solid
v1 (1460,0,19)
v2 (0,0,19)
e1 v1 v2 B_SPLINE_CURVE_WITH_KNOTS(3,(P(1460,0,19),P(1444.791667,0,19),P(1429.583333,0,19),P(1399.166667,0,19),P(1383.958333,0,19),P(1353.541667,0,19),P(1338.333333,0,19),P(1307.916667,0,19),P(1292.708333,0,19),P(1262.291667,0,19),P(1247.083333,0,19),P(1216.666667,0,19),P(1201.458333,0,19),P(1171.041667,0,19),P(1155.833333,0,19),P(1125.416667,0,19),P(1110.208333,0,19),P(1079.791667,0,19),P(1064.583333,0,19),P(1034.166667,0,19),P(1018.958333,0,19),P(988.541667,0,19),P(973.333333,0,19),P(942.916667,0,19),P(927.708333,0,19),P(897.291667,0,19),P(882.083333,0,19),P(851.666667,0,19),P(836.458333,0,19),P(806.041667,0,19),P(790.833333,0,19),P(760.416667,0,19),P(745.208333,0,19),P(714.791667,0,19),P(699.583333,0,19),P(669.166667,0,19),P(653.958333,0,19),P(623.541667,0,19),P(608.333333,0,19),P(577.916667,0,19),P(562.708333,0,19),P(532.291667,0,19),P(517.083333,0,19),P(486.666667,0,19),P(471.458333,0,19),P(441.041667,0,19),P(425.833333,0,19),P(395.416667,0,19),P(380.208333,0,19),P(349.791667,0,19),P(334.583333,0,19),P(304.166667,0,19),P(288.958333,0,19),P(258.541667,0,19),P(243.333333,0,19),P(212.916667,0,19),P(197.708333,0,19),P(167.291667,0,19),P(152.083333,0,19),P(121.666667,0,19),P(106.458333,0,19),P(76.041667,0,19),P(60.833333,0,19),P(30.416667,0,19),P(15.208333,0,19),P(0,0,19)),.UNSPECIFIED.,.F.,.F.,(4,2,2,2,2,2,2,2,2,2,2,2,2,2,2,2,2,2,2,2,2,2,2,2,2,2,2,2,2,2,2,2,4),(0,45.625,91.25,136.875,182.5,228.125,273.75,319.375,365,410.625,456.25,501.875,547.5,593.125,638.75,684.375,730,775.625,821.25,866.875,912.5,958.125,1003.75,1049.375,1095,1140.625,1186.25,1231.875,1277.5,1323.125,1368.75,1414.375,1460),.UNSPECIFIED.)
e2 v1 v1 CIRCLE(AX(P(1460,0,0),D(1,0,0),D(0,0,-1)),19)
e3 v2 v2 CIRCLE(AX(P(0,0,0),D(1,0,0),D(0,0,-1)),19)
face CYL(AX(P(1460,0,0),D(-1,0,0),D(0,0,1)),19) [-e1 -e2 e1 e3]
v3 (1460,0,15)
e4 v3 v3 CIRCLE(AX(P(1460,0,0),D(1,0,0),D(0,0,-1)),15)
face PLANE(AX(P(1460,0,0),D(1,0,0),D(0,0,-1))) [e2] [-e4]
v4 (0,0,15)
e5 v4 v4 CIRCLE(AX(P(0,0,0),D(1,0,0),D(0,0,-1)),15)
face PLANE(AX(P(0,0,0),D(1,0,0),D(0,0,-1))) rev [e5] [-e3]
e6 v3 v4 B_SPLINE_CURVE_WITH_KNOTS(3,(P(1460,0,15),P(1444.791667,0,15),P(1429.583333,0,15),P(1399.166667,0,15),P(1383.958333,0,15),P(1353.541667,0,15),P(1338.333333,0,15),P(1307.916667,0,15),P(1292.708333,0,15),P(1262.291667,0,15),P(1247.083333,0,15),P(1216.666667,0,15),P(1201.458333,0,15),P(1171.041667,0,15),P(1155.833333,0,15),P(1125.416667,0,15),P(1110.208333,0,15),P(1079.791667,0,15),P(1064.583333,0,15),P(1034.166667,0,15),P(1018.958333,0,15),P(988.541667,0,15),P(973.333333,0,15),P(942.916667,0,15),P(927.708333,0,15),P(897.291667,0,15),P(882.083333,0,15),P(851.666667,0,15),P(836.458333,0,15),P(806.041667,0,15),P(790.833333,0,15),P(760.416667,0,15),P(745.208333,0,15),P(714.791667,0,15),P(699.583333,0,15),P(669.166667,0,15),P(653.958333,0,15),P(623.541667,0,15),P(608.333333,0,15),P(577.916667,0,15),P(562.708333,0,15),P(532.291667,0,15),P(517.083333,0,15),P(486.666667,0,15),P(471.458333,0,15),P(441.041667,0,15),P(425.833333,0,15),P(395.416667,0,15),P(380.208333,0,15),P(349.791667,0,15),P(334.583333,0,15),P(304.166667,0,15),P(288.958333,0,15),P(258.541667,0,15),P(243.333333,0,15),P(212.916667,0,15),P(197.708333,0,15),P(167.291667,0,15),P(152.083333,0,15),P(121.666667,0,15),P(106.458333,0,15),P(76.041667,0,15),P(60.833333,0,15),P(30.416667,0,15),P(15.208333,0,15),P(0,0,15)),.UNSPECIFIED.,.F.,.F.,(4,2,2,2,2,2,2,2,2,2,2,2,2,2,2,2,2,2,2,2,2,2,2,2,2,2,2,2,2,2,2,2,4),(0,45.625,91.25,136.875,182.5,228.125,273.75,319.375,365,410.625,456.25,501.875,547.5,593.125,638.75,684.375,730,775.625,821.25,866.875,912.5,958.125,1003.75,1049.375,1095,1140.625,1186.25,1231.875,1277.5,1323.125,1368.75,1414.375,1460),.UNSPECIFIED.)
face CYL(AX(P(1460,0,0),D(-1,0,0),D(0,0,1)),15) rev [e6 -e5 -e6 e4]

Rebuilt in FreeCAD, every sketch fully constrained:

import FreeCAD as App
import Part
import Sketcher

V = App.Vector
Q = App.Units.Quantity

doc = App.newDocument("Part")
body = doc.addObject("PartDesign::Body", "Body")

# Sketch on YZ plane
sketch1 = body.newObject("Sketcher::SketchObject", "Sketch")
sketch1.AttachmentSupport = (doc.getObject("YZ_Plane"), [""])
sketch1.MapMode = "FlatFace"
sketch1.addGeometry([
    Part.Circle(V(0, 0, 0), V(0, 0, 1), 19),
    Part.Circle(V(0, 0, 0), V(0, 0, 1), 15),
], False)
sketch1.addConstraint([
    Sketcher.Constraint("Coincident", 0, 3, -1, 1),
    Sketcher.Constraint("Coincident", 1, 3, -1, 1),
    Sketcher.Constraint("Diameter", 0, Q("38 mm")),
    Sketcher.Constraint("Diameter", 1, Q("30 mm")),
])
pad1 = body.newObject("PartDesign::Pad", "Pad")
pad1.Profile = sketch1
pad1.Length = 1460

doc.recompute()
